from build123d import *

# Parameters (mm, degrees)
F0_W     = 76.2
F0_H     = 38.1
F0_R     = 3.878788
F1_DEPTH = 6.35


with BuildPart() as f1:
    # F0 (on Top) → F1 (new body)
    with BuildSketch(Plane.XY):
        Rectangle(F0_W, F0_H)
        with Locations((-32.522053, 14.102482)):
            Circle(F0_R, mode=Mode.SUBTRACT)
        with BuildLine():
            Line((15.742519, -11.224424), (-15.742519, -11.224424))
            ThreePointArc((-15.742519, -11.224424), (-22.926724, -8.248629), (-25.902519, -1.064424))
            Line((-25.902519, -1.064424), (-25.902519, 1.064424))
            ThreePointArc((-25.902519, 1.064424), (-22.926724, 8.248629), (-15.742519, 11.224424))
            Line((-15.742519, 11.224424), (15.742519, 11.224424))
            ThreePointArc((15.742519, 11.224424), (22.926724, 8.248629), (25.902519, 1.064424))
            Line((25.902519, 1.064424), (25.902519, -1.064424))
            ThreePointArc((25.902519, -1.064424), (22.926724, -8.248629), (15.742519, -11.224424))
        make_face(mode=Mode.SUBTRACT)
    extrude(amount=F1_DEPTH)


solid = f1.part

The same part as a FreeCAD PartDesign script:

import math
import FreeCAD as App
import Part
import Sketcher
Q = App.Units.Quantity

doc = App.newDocument("Part")
body = doc.addObject("PartDesign::Body", "Body")

sketch1 = doc.addObject("Sketcher::SketchObject", "Sketch")
body.addObject(sketch1)
sketch1.AttachmentSupport = (doc.XY_Plane, [""])
sketch1.MapMode = "FlatFace"
sketch1.addGeometry([
    Part.LineSegment(App.Vector(-38.1, 19.1, 0), App.Vector(-38.1, -19.1, 0)),
    Part.LineSegment(App.Vector(-38.1, -19.1, 0), App.Vector(38.1, -19.1, 0)),
    Part.LineSegment(App.Vector(38.1, -19.1, 0), App.Vector(38.1, 19.1, 0)),
    Part.LineSegment(App.Vector(38.1, 19.1, 0), App.Vector(-38.1, 19.1, 0)),
    Part.ArcOfCircle(Part.Circle(App.Vector(15.7, -1.1, 0), App.Vector(0, 0, 1), 10.2), math.radians(-90), math.radians(0)),
    Part.LineSegment(App.Vector(15.7, -11.2, 0), App.Vector(-15.7, -11.2, 0)),
    Part.ArcOfCircle(Part.Circle(App.Vector(-15.7, -1.1, 0), App.Vector(0, 0, 1), 10.2), math.radians(180), math.radians(270)),
    Part.LineSegment(App.Vector(-25.9, -1.1, 0), App.Vector(-25.9, 1.1, 0)),
    Part.ArcOfCircle(Part.Circle(App.Vector(-15.7, 1.1, 0), App.Vector(0, 0, 1), 10.2), math.radians(90), math.radians(180)),
    Part.LineSegment(App.Vector(-15.7, 11.2, 0), App.Vector(15.7, 11.2, 0)),
    Part.ArcOfCircle(Part.Circle(App.Vector(15.7, 1.1, 0), App.Vector(0, 0, 1), 10.2), math.radians(0), math.radians(90)),
    Part.LineSegment(App.Vector(25.9, 1.1, 0), App.Vector(25.9, -1.1, 0)),
    Part.Circle(App.Vector(-32.5, 14.1, 0), App.Vector(0, 0, 1), 3.9),
], False)
sketch1.addConstraint([
    Sketcher.Constraint("Coincident", 0, 2, 1, 1),
    Sketcher.Constraint("Coincident", 1, 2, 2, 1),
    Sketcher.Constraint("Coincident", 2, 2, 3, 1),
    Sketcher.Constraint("Coincident", 3, 2, 0, 1),
    Sketcher.Constraint("Tangent", 4, 1, 5, 1),
    Sketcher.Constraint("Tangent", 5, 2, 6, 2),
    Sketcher.Constraint("Tangent", 6, 1, 7, 1),
    Sketcher.Constraint("Tangent", 7, 2, 8, 2),
    Sketcher.Constraint("Tangent", 8, 1, 9, 1),
    Sketcher.Constraint("Tangent", 9, 2, 10, 2),
    Sketcher.Constraint("Tangent", 10, 1, 11, 1),
    Sketcher.Constraint("Tangent", 11, 2, 4, 2),
    Sketcher.Constraint("Vertical", 0),
    Sketcher.Constraint("Horizontal", 1),
    Sketcher.Constraint("Vertical", 2),
    Sketcher.Constraint("Horizontal", 3),
    Sketcher.Constraint("Horizontal", 5),
    Sketcher.Constraint("Vertical", 7),
    Sketcher.Constraint("Horizontal", 9),
    Sketcher.Constraint("Vertical", 11),
    Sketcher.Constraint("Equal", 4, 6),
    Sketcher.Constraint("Equal", 6, 8),
    Sketcher.Constraint("Equal", 8, 10),
    Sketcher.Constraint("Symmetric", 4, 3, 8, 3, -1, 1),
    Sketcher.Constraint("Symmetric", 0, 2, 2, 2, -1, 1),
    Sketcher.Constraint("Radius", 4, Q("0.4 in")),
    Sketcher.Constraint("DistanceX", 1, 1, 1, 2, Q("3 in")),
    Sketcher.Constraint("DistanceY", 0, 2, 0, 1, Q("1.5 in")),
    Sketcher.Constraint("Diameter", 12, Q("7.757576 mm")),
    Sketcher.Constraint("DistanceY", 7, 1, 7, 2, Q("2.128848 mm")),
    Sketcher.Constraint("DistanceX", 5, 2, 5, 1, Q("31.485038 mm")),
    Sketcher.Constraint("DistanceY", 12, 3, 3, 2, Q("4.947518 mm")),
    Sketcher.Constraint("DistanceX", 12, 3, -1, 1, Q("32.522053 mm")),
])
pad1 = doc.addObject("PartDesign::Pad", "Pad")
body.addObject(pad1)
pad1.Profile = sketch1
pad1.Length = Q("0.25 in")

doc.recompute()
